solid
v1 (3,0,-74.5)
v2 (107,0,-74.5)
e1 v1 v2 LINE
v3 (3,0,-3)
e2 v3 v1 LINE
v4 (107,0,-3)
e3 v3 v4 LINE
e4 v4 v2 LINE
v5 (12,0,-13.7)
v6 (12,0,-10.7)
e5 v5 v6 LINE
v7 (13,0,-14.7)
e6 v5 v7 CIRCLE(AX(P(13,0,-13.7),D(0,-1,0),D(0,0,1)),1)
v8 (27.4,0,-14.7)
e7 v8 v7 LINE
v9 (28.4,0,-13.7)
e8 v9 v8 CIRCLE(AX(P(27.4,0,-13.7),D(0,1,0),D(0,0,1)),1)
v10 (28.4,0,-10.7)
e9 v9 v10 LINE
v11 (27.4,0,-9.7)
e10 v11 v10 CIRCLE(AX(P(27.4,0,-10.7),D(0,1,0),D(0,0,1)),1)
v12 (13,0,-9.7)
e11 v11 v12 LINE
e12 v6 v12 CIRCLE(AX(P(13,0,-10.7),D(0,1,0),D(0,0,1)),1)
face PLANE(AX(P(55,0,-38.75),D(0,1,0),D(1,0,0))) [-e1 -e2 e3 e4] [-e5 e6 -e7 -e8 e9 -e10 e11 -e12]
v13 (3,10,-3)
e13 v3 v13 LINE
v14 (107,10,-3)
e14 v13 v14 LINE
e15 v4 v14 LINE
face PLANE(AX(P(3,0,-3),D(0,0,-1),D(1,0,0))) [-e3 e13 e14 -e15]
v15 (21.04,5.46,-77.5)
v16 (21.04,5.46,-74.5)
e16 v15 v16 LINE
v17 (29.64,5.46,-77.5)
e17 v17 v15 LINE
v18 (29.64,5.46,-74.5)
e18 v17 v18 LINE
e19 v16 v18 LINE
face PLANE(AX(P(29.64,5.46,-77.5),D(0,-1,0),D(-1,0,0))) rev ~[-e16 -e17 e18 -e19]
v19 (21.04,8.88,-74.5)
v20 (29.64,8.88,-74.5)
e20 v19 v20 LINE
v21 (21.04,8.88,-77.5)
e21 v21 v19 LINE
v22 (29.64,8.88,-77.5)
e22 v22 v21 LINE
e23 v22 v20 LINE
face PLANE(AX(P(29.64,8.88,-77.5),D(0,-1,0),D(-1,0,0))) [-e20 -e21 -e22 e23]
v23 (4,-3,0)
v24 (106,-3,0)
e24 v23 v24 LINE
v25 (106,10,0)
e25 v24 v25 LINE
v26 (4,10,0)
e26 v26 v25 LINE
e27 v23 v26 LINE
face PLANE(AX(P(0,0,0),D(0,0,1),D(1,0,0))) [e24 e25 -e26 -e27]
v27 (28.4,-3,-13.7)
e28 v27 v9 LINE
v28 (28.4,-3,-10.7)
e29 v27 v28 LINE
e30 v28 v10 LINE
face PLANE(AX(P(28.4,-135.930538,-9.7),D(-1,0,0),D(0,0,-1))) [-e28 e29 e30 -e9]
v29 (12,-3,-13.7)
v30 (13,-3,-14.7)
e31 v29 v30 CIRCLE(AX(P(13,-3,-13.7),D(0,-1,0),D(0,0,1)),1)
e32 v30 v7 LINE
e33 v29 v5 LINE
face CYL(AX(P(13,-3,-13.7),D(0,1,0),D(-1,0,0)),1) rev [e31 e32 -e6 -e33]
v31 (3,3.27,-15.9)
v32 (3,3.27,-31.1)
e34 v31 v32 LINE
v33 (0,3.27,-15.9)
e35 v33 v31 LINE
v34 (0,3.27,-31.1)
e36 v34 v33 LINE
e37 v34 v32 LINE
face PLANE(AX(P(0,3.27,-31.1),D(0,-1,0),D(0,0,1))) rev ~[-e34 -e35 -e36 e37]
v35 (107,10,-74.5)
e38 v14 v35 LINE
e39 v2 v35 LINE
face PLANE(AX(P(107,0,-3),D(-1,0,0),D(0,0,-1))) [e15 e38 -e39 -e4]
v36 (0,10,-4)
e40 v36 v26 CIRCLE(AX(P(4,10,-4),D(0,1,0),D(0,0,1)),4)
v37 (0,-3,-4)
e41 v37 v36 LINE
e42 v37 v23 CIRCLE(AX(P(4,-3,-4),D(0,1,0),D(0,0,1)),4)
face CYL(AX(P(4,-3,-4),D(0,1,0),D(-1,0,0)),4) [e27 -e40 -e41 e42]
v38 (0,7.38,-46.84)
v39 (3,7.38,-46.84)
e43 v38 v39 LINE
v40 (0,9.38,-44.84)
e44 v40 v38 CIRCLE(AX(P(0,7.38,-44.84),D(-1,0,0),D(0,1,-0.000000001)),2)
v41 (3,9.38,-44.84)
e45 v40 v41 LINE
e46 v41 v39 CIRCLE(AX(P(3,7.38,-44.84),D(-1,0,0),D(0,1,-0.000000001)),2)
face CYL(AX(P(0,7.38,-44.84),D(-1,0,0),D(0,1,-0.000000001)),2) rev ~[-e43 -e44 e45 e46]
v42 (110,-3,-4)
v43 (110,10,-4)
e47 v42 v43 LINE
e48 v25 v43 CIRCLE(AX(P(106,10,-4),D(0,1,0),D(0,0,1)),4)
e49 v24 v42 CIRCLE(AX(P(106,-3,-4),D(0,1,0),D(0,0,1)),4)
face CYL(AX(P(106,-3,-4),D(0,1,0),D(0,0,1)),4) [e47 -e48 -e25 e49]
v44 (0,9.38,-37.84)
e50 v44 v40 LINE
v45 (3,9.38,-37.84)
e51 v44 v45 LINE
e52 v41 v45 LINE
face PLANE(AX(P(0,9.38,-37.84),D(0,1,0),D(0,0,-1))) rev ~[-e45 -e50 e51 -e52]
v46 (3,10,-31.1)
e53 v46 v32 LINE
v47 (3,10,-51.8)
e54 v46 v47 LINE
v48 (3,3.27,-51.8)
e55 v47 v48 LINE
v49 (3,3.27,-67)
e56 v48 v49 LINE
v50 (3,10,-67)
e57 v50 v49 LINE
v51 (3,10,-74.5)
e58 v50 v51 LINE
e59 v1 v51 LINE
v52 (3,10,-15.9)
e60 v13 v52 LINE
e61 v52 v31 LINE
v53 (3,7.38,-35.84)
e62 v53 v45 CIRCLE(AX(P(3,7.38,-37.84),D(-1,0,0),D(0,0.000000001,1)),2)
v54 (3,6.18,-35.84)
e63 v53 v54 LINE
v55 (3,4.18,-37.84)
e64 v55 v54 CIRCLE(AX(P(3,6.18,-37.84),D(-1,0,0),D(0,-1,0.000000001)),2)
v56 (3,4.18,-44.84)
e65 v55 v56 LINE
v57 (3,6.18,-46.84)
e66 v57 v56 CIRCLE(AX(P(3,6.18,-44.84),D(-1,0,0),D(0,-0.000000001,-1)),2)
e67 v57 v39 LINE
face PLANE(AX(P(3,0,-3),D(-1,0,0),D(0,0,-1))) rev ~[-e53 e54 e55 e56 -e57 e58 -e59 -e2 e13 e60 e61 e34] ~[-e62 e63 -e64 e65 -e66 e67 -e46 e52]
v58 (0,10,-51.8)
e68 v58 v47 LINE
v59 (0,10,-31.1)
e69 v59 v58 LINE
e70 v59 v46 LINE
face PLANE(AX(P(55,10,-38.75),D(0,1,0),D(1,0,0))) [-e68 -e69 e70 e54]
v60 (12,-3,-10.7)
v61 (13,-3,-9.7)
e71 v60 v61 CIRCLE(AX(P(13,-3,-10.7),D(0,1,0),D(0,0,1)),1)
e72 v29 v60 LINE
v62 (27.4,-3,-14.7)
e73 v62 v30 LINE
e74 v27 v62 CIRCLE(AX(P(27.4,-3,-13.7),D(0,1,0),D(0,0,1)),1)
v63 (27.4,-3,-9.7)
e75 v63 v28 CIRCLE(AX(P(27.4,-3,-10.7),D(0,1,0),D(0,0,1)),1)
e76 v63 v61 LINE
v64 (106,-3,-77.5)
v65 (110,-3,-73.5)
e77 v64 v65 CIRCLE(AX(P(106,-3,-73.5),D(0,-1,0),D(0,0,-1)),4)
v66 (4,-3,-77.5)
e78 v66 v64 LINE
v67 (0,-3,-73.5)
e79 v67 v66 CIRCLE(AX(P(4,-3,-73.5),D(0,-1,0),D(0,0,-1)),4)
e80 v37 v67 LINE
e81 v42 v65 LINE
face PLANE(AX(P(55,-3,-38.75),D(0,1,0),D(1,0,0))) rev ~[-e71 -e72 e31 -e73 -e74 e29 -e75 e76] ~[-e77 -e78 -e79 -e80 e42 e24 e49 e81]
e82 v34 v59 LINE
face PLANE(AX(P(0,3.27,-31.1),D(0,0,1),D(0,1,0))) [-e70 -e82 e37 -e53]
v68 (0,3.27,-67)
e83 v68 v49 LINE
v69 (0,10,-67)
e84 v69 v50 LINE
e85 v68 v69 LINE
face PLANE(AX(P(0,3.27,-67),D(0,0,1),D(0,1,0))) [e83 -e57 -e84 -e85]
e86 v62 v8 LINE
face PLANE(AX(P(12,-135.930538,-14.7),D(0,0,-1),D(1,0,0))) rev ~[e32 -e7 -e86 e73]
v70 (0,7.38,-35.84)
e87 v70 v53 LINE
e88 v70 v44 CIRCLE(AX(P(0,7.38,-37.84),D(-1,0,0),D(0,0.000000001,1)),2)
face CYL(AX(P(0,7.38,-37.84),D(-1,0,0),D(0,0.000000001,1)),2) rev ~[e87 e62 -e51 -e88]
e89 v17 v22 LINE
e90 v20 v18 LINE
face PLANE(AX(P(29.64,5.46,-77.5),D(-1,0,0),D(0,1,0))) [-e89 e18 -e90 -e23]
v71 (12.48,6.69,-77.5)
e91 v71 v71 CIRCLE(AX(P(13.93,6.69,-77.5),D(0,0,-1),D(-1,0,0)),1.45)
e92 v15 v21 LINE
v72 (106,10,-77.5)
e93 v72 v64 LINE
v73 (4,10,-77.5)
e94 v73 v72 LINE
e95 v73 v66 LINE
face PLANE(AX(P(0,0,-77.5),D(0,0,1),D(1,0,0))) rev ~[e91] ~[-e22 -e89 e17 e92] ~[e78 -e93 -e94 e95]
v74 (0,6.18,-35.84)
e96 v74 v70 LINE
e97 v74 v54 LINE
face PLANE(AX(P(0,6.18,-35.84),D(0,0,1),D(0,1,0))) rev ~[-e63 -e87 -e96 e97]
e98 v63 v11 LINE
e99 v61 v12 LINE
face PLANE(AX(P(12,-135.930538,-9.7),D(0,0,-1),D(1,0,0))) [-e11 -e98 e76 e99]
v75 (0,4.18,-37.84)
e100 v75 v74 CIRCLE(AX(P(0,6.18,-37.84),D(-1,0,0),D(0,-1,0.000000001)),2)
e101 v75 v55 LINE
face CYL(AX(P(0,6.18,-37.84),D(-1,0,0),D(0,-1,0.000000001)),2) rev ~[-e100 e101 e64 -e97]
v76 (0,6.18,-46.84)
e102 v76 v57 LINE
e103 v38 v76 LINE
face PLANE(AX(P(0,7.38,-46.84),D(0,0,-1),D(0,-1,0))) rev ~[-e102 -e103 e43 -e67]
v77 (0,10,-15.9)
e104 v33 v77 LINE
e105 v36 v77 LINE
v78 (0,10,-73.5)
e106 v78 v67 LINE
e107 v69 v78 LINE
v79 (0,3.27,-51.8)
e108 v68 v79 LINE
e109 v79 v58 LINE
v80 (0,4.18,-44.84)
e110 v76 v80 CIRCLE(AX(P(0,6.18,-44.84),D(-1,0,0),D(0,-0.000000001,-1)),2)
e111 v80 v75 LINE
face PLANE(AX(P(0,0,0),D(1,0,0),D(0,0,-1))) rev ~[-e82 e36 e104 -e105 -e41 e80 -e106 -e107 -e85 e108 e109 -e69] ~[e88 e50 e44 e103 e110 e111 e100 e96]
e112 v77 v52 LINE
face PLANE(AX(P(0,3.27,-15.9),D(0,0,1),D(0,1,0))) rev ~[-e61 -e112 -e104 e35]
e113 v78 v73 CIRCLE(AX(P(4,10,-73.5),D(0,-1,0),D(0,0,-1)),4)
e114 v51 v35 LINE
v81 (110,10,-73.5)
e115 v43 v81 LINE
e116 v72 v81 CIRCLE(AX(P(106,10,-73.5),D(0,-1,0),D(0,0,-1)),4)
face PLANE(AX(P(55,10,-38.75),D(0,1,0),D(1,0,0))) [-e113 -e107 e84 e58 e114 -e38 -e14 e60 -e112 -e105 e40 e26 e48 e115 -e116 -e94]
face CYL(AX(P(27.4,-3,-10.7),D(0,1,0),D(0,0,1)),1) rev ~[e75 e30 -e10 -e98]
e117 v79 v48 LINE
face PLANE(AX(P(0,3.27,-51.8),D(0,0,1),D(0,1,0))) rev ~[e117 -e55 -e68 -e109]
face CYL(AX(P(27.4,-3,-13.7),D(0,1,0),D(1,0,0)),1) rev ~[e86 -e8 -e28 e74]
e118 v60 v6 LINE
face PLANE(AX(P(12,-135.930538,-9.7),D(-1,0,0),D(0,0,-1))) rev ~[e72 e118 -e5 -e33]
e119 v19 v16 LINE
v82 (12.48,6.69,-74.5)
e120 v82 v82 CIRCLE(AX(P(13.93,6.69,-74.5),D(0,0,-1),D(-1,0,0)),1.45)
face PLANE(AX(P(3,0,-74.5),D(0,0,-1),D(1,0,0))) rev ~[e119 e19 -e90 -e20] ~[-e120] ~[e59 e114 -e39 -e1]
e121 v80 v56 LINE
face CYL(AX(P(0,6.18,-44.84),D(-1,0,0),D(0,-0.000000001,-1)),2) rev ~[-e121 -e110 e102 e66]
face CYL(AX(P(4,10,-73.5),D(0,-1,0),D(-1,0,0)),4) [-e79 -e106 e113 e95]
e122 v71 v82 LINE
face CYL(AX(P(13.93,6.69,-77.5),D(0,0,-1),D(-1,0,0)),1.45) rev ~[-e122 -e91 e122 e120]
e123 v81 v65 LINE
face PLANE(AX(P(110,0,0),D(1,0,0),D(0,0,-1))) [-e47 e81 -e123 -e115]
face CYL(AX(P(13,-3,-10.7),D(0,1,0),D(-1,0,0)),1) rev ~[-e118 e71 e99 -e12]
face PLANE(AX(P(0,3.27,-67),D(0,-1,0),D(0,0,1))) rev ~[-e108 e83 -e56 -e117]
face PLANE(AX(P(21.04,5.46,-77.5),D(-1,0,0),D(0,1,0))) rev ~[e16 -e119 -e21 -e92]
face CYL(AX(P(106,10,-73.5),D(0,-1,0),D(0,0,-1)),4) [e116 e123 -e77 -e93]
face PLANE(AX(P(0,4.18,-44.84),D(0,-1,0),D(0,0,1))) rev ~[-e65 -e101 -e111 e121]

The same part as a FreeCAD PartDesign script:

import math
import FreeCAD as App
import Part
import Sketcher
from FreeCAD import Vector


def edges_at(feature, points):
    """Names of the edges that pass closest to the given points."""
    edges = feature.Shape.Edges
    near = lambda p: min(range(len(edges)), key=lambda i: edges[i].distToShape(Part.Vertex(*p))[0])
    return sorted({f"Edge{near(p) + 1}" for p in points})


def add_polygon(sketch, points):
    """Adds a closed chain of lines whose ends are joined by coincident constraints."""
    first, n = sketch.GeometryCount, len(points)
    for a, b in zip(points, points[1:] + points[:1]):
        sketch.addGeometry(Part.LineSegment(App.Vector(*a, 0), App.Vector(*b, 0)), False)
    for i in range(n):
        sketch.addConstraint(Sketcher.Constraint("Coincident", first + i, 2, first + (i + 1) % n, 1))

doc = App.newDocument("Part")
body = doc.addObject("PartDesign::Body", "Body")

# Sketch on XZ plane
sketch1 = body.newObject("Sketcher::SketchObject", "Sketch")
sketch1.AttachmentSupport = (doc.getObject("XZ_Plane"), [""])
sketch1.MapMode = "FlatFace"
add_polygon(sketch1, [(0, -78), (0, 0), (110, 0), (110, -78)])  # lines 0-3
add_polygon(sketch1, [(107, -3), (3, -3), (3, -74), (107, -74)])  # lines 4-7
sketch1.addConstraint([
    Sketcher.Constraint("Vertical", 0),
    Sketcher.Constraint("Horizontal", 1),
    Sketcher.Constraint("Vertical", 2),
    Sketcher.Constraint("Horizontal", 3),
    Sketcher.Constraint("Horizontal", 4),
    Sketcher.Constraint("Vertical", 5),
    Sketcher.Constraint("Horizontal", 6),
    Sketcher.Constraint("Vertical", 7),
    Sketcher.Constraint("Coincident", 0, 2, -1, 1),
    Sketcher.Constraint("DistanceX", 1, 1, 1, 2, 110.0),
    Sketcher.Constraint("DistanceX", 4, 2, 4, 1, 104.0),
    Sketcher.Constraint("DistanceY", 0, 1, 0, 2, 77.5),
    Sketcher.Constraint("DistanceY", 5, 2, 5, 1, 71.5),
    Sketcher.Constraint("DistanceX", -1, 1, 4, 2, 3.0),
    Sketcher.Constraint("DistanceY", 4, 2, -1, 1, 3.0),
])
pad1 = body.newObject("PartDesign::Pad", "Pad")
pad1.Profile = sketch1
pad1.Length = 10
pad1.Reversed = True

# Sketch on XZ plane
sketch2 = body.newObject("Sketcher::SketchObject", "Sketch001")
sketch2.AttachmentSupport = (doc.getObject("XZ_Plane"), [""])
sketch2.MapMode = "FlatFace"
add_polygon(sketch2, [(0, -78), (0, 0), (110, 0), (110, -78)])  # lines 0-3
sketch2.addConstraint([
    Sketcher.Constraint("Vertical", 0),
    Sketcher.Constraint("Horizontal", 1),
    Sketcher.Constraint("Vertical", 2),
    Sketcher.Constraint("Horizontal", 3),
    Sketcher.Constraint("Coincident", 0, 2, -1, 1),
    Sketcher.Constraint("DistanceX", 1, 1, 1, 2, 110.0),
    Sketcher.Constraint("DistanceY", 0, 1, 0, 2, 77.5),
])
pad2 = body.newObject("PartDesign::Pad", "Pad001")
pad2.Profile = sketch2
pad2.Length = 3

# Sketch on YZ plane
sketch3 = body.newObject("Sketcher::SketchObject", "Sketch002")
sketch3.AttachmentSupport = (doc.getObject("YZ_Plane"), [""])
sketch3.MapMode = "FlatFace"
add_polygon(sketch3, [(10, -31), (3, -31), (3, -16), (10, -16)])  # lines 0-3
sketch3.addConstraint([
    Sketcher.Constraint("Horizontal", 0),
    Sketcher.Constraint("Vertical", 1),
    Sketcher.Constraint("Horizontal", 2),
    Sketcher.Constraint("Vertical", 3),
    Sketcher.Constraint("DistanceY", 1, 1, 1, 2, 15.2),
    Sketcher.Constraint("DistanceX", -1, 1, 2, 2, 10.0),
    Sketcher.Constraint("DistanceX", 0, 2, 0, 1, 6.73),
    Sketcher.Constraint("DistanceY", 0, 2, -1, 1, 31.1),
])
pocket1 = body.newObject("PartDesign::Pocket", "Pocket")
pocket1.Profile = sketch3
pocket1.Type = "UpToFirst"
pocket1.Reversed = True

# Sketch on YZ plane
sketch4 = body.newObject("Sketcher::SketchObject", "Sketch003")
sketch4.AttachmentSupport = (doc.getObject("YZ_Plane"), [""])
sketch4.MapMode = "FlatFace"
add_polygon(sketch4, [(10, -67), (3, -67), (3, -52), (10, -52)])  # lines 0-3
sketch4.addConstraint([
    Sketcher.Constraint("Horizontal", 0),
    Sketcher.Constraint("Vertical", 1),
    Sketcher.Constraint("Horizontal", 2),
    Sketcher.Constraint("Vertical", 3),
    Sketcher.Constraint("DistanceY", 1, 1, 1, 2, 15.2),
    Sketcher.Constraint("DistanceY", 0, 2, -1, 1, 67.0),
    Sketcher.Constraint("DistanceX", -1, 1, 2, 2, 10.0),
    Sketcher.Constraint("DistanceX", 0, 2, 0, 1, 6.73),
])
pocket2 = body.newObject("PartDesign::Pocket", "Pocket001")
pocket2.Profile = sketch4
pocket2.Type = "UpToFirst"
pocket2.Reversed = True

# Sketch on YZ plane
sketch5 = body.newObject("Sketcher::SketchObject", "Sketch004")
sketch5.AttachmentSupport = (doc.getObject("YZ_Plane"), [""])
sketch5.MapMode = "FlatFace"
sketch5.addGeometry([
    Part.LineSegment(Vector(9.4, -37.8, 0), Vector(9.4, -44.8, 0)),  # 0
    Part.ArcOfCircle(Part.Circle(Vector(7.4, -44.8, 0), Vector(0, 0, 1), 2), math.radians(-90), math.radians(0)),  # 1
    Part.LineSegment(Vector(7.4, -46.8, 0), Vector(6.2, -46.8, 0)),  # 2
    Part.ArcOfCircle(Part.Circle(Vector(6.2, -44.8, 0), Vector(0, 0, 1), 2), math.radians(-180), math.radians(-90)),  # 3
    Part.LineSegment(Vector(4.2, -44.8, 0), Vector(4.2, -37.8, 0)),  # 4
    Part.ArcOfCircle(Part.Circle(Vector(6.2, -37.8, 0), Vector(0, 0, 1), 2), math.radians(90), math.radians(180)),  # 5
    Part.LineSegment(Vector(6.2, -35.8, 0), Vector(7.4, -35.8, 0)),  # 6
    Part.ArcOfCircle(Part.Circle(Vector(7.4, -37.8, 0), Vector(0, 0, 1), 2), math.radians(0), math.radians(90)),  # 7
], False)
sketch5.addConstraint([
    Sketcher.Constraint("Tangent", 0, 2, 1, 2),
    Sketcher.Constraint("Tangent", 1, 1, 2, 1),
    Sketcher.Constraint("Tangent", 2, 2, 3, 2),
    Sketcher.Constraint("Tangent", 3, 1, 4, 1),
    Sketcher.Constraint("Tangent", 4, 2, 5, 2),
    Sketcher.Constraint("Tangent", 5, 1, 6, 1),
    Sketcher.Constraint("Tangent", 6, 2, 7, 2),
    Sketcher.Constraint("Tangent", 7, 1, 0, 1),
    Sketcher.Constraint("Vertical", 0),
    Sketcher.Constraint("Horizontal", 2),
    Sketcher.Constraint("Vertical", 4),
    Sketcher.Constraint("Horizontal", 6),
    Sketcher.Constraint("Equal", 1, 3),
    Sketcher.Constraint("Equal", 3, 5),
    Sketcher.Constraint("Equal", 5, 7),
    Sketcher.Constraint("Radius", 1, 2.0),
    Sketcher.Constraint("DistanceY", 0, 2, 0, 1, 7.0),
    Sketcher.Constraint("DistanceX", 2, 2, 2, 1, 1.2),
    Sketcher.Constraint("DistanceX", -1, 1, 1, 3, 7.38),
    Sketcher.Constraint("DistanceY", 1, 3, -1, 1, 44.84),
])
pocket3 = body.newObject("PartDesign::Pocket", "Pocket002")
pocket3.Profile = sketch5
pocket3.Type = "UpToFirst"
pocket3.Reversed = True

# Sketch on XY plane
sketch6 = body.newObject("Sketcher::SketchObject", "Sketch005")
sketch6.AttachmentSupport = (doc.getObject("XY_Plane"), [""])
sketch6.MapMode = "FlatFace"
sketch6.AttachmentOffset = App.Placement(Vector(0, 0, -77.5), App.Rotation())
sketch6.addGeometry(Part.Circle(Vector(13.9, 6.7, 0), Vector(0, 0, 1), 1.4), False)
sketch6.addConstraint([
    Sketcher.Constraint("Diameter", 0, 2.9),
    Sketcher.Constraint("DistanceX", -1, 1, 0, 3, 13.93),
    Sketcher.Constraint("DistanceY", -1, 1, 0, 3, 6.69),
])
pocket4 = body.newObject("PartDesign::Pocket", "Pocket003")
pocket4.Profile = sketch6
pocket4.Type = "UpToFirst"
pocket4.Reversed = True

# Sketch on XY plane
sketch7 = body.newObject("Sketcher::SketchObject", "Sketch006")
sketch7.AttachmentSupport = (doc.getObject("XY_Plane"), [""])
sketch7.MapMode = "FlatFace"
sketch7.AttachmentOffset = App.Placement(Vector(0, 0, -77.5), App.Rotation())
add_polygon(sketch7, [(29.6, 8.9), (29.6, 5.5), (21, 5.5), (21, 8.9)])  # lines 0-3
sketch7.addConstraint([
    Sketcher.Constraint("Vertical", 0),
    Sketcher.Constraint("Horizontal", 1),
    Sketcher.Constraint("Vertical", 2),
    Sketcher.Constraint("Horizontal", 3),
    Sketcher.Constraint("DistanceX", 1, 2, 1, 1, 8.6),
    Sketcher.Constraint("DistanceY", 0, 2, 0, 1, 3.42),
    Sketcher.Constraint("DistanceX", -1, 1, 0, 2, 29.64),
    Sketcher.Constraint("DistanceY", -1, 1, 0, 2, 5.46),
])
pocket5 = body.newObject("PartDesign::Pocket", "Pocket004")
pocket5.Profile = sketch7
pocket5.Type = "UpToFirst"
pocket5.Reversed = True

# Sketch on XZ plane
sketch8 = body.newObject("Sketcher::SketchObject", "Sketch007")
sketch8.AttachmentSupport = (doc.getObject("XZ_Plane"), [""])
sketch8.MapMode = "FlatFace"
add_polygon(sketch8, [(12, -15), (12, -10), (28, -10), (28, -15)])  # lines 0-3
sketch8.addConstraint([
    Sketcher.Constraint("Vertical", 0),
    Sketcher.Constraint("Horizontal", 1),
    Sketcher.Constraint("Vertical", 2),
    Sketcher.Constraint("Horizontal", 3),
    Sketcher.Constraint("DistanceY", 0, 1, 0, 2, 5.0),
    Sketcher.Constraint("DistanceX", 1, 1, 1, 2, 16.4),
    Sketcher.Constraint("DistanceX", -1, 1, 0, 2, 12.0),
    Sketcher.Constraint("DistanceY", 0, 2, -1, 1, 9.7),
])
pocket6 = body.newObject("PartDesign::Pocket", "Pocket005")
pocket6.Profile = sketch8
pocket6.Type = "ThroughAll"
pocket6.Midplane = True
doc.recompute()

fillet = body.newObject("PartDesign::Fillet", "Fillet")
fillet.Base = (pocket6, edges_at(pocket6, [
    (0, 3.5, -77.5),
    (110, 3.5, -77.5),
    (110, 3.5, 0),
    (0, 3.5, 0),
]))
fillet.Radius = 4
doc.recompute()

fillet2 = body.newObject("PartDesign::Fillet", "Fillet001")
fillet2.Base = (fillet, edges_at(fillet, [
    (12, -1.5, -9.7),
    (12, -1.5, -14.7),
    (28.4, -1.5, -14.7),
    (28.4, -1.5, -9.7),
]))
fillet2.Radius = 1

doc.recompute()
